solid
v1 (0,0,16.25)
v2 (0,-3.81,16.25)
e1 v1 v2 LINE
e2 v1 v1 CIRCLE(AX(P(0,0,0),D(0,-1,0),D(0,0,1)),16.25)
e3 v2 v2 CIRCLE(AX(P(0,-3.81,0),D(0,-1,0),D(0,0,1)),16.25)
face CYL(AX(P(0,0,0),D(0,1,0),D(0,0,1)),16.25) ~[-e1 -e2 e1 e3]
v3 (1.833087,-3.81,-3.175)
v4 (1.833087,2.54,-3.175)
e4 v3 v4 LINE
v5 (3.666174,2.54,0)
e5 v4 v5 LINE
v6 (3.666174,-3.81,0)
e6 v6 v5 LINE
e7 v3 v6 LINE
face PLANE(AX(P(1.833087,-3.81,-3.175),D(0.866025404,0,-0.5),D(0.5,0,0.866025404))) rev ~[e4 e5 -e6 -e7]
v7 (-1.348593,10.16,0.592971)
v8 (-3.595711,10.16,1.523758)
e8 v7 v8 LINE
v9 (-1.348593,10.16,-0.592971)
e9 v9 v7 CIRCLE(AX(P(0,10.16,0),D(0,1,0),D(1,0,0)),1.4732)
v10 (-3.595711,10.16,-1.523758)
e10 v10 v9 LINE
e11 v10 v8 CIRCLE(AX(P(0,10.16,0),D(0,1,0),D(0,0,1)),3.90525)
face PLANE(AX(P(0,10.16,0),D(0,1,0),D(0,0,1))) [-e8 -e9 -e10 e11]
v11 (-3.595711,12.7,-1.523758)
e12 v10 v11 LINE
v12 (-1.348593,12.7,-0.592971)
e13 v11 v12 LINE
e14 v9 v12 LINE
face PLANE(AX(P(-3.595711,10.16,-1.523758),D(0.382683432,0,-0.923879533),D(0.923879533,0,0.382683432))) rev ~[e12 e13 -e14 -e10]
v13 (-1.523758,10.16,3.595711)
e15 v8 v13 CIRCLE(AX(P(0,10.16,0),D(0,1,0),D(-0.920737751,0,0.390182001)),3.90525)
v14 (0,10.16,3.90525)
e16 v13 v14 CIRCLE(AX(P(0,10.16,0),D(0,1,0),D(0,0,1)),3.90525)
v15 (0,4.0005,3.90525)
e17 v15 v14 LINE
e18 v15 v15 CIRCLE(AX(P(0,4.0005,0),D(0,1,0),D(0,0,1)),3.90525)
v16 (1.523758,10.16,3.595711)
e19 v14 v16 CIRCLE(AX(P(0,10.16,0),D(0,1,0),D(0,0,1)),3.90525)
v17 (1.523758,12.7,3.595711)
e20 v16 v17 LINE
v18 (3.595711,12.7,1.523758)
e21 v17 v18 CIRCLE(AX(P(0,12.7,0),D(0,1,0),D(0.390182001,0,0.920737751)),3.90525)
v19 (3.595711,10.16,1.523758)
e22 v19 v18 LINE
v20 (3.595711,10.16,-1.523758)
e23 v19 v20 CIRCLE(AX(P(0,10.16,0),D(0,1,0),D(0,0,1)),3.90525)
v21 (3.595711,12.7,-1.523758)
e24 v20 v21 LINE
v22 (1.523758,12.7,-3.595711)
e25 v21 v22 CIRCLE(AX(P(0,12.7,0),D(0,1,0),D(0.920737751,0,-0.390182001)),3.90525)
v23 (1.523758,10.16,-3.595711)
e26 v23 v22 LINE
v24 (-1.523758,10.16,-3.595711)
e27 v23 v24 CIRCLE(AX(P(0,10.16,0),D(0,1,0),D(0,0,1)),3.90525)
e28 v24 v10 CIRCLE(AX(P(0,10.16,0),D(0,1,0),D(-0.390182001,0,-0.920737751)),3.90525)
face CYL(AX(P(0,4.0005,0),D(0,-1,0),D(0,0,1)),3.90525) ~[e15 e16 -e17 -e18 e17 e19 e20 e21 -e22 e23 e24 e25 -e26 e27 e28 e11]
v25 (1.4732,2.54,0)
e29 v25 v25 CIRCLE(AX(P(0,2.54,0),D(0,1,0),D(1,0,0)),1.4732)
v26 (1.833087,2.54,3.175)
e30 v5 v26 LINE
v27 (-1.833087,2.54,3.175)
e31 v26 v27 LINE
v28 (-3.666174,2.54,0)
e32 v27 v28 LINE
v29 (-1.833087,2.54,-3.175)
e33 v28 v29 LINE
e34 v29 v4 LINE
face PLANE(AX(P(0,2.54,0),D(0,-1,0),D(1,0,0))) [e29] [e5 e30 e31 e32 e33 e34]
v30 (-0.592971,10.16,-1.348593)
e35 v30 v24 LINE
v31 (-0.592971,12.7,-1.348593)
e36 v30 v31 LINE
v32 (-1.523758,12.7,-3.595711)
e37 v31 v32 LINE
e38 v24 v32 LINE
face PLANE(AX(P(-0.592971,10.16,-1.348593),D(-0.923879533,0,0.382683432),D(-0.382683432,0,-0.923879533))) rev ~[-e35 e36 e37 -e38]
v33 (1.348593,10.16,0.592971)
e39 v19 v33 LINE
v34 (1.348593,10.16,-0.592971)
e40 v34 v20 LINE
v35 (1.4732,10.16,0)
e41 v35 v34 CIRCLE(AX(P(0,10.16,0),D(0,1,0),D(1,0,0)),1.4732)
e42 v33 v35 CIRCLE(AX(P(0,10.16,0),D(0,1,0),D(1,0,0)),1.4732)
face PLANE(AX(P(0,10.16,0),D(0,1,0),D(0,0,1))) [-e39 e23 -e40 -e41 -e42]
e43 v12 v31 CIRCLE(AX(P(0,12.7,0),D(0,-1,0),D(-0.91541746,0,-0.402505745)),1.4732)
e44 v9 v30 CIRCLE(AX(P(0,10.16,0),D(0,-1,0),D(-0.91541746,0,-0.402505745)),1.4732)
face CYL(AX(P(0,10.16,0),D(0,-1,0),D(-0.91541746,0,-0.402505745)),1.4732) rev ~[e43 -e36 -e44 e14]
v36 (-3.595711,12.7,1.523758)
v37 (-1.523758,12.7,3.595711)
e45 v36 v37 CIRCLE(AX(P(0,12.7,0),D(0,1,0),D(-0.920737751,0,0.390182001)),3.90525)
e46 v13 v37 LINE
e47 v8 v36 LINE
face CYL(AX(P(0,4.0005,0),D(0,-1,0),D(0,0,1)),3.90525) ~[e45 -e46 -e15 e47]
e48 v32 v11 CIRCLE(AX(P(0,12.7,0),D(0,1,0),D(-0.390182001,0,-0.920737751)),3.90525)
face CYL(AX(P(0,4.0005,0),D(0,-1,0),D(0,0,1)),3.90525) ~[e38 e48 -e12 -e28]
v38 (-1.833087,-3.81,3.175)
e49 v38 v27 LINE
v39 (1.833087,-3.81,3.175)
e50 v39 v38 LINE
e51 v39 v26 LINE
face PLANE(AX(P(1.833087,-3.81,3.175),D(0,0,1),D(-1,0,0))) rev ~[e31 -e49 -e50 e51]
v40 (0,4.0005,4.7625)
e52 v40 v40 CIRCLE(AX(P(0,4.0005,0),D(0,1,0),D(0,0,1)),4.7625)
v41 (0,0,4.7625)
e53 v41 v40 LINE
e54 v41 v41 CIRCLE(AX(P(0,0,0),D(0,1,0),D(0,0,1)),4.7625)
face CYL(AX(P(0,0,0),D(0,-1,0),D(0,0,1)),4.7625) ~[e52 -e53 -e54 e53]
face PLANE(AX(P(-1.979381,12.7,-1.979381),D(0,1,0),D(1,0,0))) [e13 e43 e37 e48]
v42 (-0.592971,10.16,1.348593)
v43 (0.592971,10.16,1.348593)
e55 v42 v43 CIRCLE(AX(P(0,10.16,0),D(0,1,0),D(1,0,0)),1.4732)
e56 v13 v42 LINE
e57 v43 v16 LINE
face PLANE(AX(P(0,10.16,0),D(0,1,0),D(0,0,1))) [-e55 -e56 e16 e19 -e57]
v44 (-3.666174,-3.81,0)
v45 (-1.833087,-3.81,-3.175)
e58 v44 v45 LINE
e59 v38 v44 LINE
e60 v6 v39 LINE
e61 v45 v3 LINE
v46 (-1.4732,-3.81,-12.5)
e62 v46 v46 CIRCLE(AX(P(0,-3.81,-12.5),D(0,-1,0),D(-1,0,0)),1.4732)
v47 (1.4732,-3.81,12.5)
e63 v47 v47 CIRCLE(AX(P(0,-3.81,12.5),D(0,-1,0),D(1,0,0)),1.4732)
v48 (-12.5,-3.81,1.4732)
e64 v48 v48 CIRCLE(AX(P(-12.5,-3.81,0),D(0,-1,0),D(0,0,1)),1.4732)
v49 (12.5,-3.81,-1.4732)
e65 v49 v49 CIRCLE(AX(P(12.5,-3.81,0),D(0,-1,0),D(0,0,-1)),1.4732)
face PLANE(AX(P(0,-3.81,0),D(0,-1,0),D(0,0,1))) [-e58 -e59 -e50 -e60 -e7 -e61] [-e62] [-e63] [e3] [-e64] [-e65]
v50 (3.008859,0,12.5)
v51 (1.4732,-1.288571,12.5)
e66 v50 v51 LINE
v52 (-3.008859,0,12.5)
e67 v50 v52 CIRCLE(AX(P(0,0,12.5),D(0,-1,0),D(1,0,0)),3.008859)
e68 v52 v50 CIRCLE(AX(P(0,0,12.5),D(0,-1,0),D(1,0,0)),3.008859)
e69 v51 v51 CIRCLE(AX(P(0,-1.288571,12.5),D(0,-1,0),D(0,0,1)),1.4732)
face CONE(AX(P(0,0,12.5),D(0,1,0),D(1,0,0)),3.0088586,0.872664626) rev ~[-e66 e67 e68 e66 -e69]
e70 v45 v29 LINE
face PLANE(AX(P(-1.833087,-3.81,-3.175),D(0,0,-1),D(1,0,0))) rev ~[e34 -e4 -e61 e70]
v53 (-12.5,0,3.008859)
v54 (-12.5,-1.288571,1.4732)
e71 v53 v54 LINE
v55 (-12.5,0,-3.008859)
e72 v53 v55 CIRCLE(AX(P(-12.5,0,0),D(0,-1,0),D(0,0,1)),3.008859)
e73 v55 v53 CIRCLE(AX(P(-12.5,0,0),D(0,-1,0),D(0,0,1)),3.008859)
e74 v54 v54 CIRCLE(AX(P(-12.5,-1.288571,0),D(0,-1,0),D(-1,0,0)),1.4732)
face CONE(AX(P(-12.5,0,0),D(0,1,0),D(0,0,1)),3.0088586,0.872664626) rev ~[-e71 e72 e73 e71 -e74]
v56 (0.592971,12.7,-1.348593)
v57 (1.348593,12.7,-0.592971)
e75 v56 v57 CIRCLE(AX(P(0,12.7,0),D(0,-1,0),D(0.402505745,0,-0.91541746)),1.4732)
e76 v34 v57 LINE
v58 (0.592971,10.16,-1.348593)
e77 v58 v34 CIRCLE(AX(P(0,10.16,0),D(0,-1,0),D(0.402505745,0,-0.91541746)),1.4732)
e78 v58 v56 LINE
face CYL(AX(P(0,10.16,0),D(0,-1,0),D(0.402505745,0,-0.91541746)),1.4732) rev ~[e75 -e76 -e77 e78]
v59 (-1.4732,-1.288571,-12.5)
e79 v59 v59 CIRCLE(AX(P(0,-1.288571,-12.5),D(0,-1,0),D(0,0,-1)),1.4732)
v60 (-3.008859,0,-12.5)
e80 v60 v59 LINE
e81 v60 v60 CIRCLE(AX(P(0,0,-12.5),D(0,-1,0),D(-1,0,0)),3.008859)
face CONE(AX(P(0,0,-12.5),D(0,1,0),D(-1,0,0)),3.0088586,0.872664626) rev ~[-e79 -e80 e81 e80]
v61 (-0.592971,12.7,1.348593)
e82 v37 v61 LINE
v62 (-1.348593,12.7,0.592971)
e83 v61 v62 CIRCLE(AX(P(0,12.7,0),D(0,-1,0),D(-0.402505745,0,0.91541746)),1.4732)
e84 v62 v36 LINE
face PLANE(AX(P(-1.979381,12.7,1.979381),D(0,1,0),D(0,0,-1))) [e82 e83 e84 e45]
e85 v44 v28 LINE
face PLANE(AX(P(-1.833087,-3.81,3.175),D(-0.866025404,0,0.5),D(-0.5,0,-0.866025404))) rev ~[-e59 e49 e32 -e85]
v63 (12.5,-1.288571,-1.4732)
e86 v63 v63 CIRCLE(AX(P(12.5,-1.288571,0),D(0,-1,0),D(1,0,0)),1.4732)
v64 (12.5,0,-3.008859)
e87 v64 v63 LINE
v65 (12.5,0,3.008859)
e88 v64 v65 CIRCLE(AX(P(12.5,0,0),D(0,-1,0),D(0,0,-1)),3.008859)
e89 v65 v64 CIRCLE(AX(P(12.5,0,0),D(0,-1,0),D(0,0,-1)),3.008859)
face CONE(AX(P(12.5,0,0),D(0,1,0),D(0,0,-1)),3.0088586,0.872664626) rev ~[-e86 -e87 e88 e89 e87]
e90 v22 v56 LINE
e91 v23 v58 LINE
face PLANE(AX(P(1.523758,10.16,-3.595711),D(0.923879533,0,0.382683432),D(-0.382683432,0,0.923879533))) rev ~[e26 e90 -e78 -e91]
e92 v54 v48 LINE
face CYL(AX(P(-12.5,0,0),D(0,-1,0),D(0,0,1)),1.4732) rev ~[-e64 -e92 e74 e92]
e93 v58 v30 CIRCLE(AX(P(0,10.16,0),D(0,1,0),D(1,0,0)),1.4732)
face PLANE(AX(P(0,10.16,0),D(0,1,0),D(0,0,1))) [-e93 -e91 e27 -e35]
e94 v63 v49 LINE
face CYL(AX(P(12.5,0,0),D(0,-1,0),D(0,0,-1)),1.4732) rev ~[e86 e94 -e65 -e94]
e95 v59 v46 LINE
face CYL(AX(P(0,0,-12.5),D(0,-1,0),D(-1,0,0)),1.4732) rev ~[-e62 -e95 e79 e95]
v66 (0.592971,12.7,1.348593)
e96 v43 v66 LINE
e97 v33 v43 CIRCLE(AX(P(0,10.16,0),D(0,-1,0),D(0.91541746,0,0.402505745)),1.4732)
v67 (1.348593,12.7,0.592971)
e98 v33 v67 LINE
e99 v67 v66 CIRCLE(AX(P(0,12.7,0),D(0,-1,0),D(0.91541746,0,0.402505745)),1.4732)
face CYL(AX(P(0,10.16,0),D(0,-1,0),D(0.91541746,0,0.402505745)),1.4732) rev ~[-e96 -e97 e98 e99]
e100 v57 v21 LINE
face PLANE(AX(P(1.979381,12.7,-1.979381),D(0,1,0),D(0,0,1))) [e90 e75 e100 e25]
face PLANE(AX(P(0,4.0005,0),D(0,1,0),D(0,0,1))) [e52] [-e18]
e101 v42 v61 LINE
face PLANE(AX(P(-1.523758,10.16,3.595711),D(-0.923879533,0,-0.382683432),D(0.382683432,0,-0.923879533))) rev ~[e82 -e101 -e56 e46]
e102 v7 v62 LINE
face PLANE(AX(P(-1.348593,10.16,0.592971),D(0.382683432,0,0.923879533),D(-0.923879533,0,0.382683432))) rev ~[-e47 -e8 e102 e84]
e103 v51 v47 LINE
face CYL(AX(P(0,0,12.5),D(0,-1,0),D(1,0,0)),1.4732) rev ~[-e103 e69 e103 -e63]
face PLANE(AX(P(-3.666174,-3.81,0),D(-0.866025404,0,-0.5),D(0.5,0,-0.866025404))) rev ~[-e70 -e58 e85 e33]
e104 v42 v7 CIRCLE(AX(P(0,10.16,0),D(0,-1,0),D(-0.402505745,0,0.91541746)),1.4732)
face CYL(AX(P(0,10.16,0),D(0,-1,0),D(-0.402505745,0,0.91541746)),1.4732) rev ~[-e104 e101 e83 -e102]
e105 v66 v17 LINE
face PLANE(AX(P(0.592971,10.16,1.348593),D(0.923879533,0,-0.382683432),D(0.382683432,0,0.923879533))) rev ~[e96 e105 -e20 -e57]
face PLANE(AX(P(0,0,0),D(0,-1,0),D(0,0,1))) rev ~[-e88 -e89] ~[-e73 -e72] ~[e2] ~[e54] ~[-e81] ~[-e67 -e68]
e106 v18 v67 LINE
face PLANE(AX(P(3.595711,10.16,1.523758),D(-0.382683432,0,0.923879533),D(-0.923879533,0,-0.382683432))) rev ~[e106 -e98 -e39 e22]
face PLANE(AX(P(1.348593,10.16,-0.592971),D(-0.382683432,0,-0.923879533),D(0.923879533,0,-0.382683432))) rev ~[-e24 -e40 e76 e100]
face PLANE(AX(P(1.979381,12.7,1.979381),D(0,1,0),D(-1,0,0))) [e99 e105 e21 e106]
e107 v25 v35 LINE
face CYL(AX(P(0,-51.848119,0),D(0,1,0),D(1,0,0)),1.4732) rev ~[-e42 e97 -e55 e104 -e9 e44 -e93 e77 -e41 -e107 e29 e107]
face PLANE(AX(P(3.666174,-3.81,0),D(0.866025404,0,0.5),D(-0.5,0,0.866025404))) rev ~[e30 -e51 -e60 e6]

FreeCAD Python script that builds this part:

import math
import FreeCAD as App
import Part
import Sketcher

V = App.Vector
Q = App.Units.Quantity

doc = App.newDocument("Part")
body = doc.addObject("PartDesign::Body", "Body")

# Sketch on XZ plane
sketch1 = doc.addObject("Sketcher::SketchObject", "Sketch")
body.addObject(sketch1)
sketch1.AttachmentSupport = (doc.XZ_Plane, [""])
sketch1.MapMode = "FlatFace"
sketch1.addGeometry(Part.Circle(V(0, 0, 0), V(0, 0, 1), 4.8), False)
sketch1.addConstraint([
    Sketcher.Constraint("Coincident", 0, 3, -1, 1),
    Sketcher.Constraint("Diameter", 0, Q("0.375 in")),
])
pad1 = doc.addObject("PartDesign::Pad", "Pad")
body.addObject(pad1)
pad1.Profile = sketch1
pad1.Length = Q("0.4 in")
pad1.Reversed = True

# Sketch on XZ plane
sketch2 = doc.addObject("Sketcher::SketchObject", "Sketch001")
body.addObject(sketch2)
sketch2.AttachmentSupport = (doc.XZ_Plane, [""])
sketch2.MapMode = "FlatFace"
sketch2.addGeometry(Part.Circle(V(0, 0, 0), V(0, 0, 1), 16), False)
sketch2.addConstraint([
    Sketcher.Constraint("Coincident", 0, 3, -1, 1),
    Sketcher.Constraint("Diameter", 0, Q("32.5 mm")),
])
pad2 = doc.addObject("PartDesign::Pad", "Pad001")
body.addObject(pad2)
pad2.Profile = sketch2
pad2.Length = Q("0.15 in")

# Sketch on XZ plane
sketch3 = doc.addObject("Sketcher::SketchObject", "Sketch002")
body.addObject(sketch3)
sketch3.AttachmentSupport = (doc.XZ_Plane, [""])
sketch3.MapMode = "FlatFace"
sketch3.AttachmentOffset = App.Placement(V(0, 0, 0.15 * 25.4), App.Rotation())
sketch3.addGeometry(Part.Circle(V(0, 0, 0), V(0, 0, 1), 1.5), False)
sketch3.addConstraint([
    Sketcher.Constraint("Coincident", 0, 3, -1, 1),
    Sketcher.Constraint("Diameter", 0, Q("0.116 in")),
])
doc.recompute()
hole = doc.addObject("PartDesign::Hole", "Hole")
body.addObject(hole)
hole.Profile = sketch3
hole.ThreadType = "None"
hole.Diameter = Q("0.116 in")
hole.DepthType = "ThroughAll"

# Sketch on XZ plane
sketch4 = doc.addObject("Sketcher::SketchObject", "Sketch003")
body.addObject(sketch4)
sketch4.AttachmentSupport = (doc.XZ_Plane, [""])
sketch4.MapMode = "FlatFace"
sketch4.AttachmentOffset = App.Placement(V(0, 0, -0.1575 * 25.4), App.Rotation())
sketch4.addGeometry([
    Part.Circle(V(0, 0, 0), V(0, 0, 1), 4.8),
    Part.Circle(V(0, 0, 0), V(0, 0, 1), 3.9),
], False)
sketch4.addConstraint([
    Sketcher.Constraint("Coincident", 0, 3, -1, 1),
    Sketcher.Constraint("Coincident", 1, 3, -1, 1),
    Sketcher.Constraint("Diameter", 0, Q("0.375 in")),
    Sketcher.Constraint("Diameter", 1, Q("0.3075 in")),
])
pocket1 = doc.addObject("PartDesign::Pocket", "Pocket")
body.addObject(pocket1)
pocket1.Profile = sketch4
pocket1.Length = Q("0.2425 in")

# Sketch on XZ plane
sketch5 = doc.addObject("Sketcher::SketchObject", "Sketch004")
body.addObject(sketch5)
sketch5.AttachmentSupport = (doc.XZ_Plane, [""])
sketch5.MapMode = "FlatFace"
sketch5.AttachmentOffset = App.Placement(V(0, 0, 0.15 * 25.4), App.Rotation())
sketch5.addGeometry([
    Part.LineSegment(V(-3.7, 0, 0), V(-1.8, -3.2, 0)),  # 0
    Part.LineSegment(V(-1.8, -3.2, 0), V(1.8, -3.2, 0)),  # 1
    Part.LineSegment(V(1.8, -3.2, 0), V(3.7, 0, 0)),  # 2
    Part.LineSegment(V(3.7, 0, 0), V(1.8, 3.2, 0)),  # 3
    Part.LineSegment(V(1.8, 3.2, 0), V(-1.8, 3.2, 0)),  # 4
    Part.LineSegment(V(-1.8, 3.2, 0), V(-3.7, 0, 0)),  # 5
], False)
sketch5.addConstraint([
    Sketcher.Constraint("Coincident", 0, 2, 1, 1),
    Sketcher.Constraint("Coincident", 1, 2, 2, 1),
    Sketcher.Constraint("Coincident", 2, 2, 3, 1),
    Sketcher.Constraint("Coincident", 3, 2, 4, 1),
    Sketcher.Constraint("Coincident", 4, 2, 5, 1),
    Sketcher.Constraint("Coincident", 5, 2, 0, 1),
    Sketcher.Constraint("Horizontal", 1),
    Sketcher.Constraint("Horizontal", 4),
    Sketcher.Constraint("Symmetric", 0, 2, 3, 2, -1, 1),
    Sketcher.Constraint("Symmetric", 2, 2, 5, 2, -1, 1),
    Sketcher.Constraint("PointOnObject", 2, 2, -1),
    Sketcher.Constraint("Parallel", 2, 5),
    Sketcher.Constraint("Vertical", 1, 2, 3, 2),
    Sketcher.Constraint("Angle", 0, Q("-60 deg")),
    Sketcher.Constraint("DistanceY", 1, 2, 3, 2, Q("0.25 in")),
    Sketcher.Constraint("DistanceX", 1, 1, 1, 2, Q("3.666174 mm")),
])
pocket2 = doc.addObject("PartDesign::Pocket", "Pocket001")
body.addObject(pocket2)
pocket2.Profile = sketch5
pocket2.Length = Q("0.25 in")

# Sketch on XZ plane
sketch6 = doc.addObject("Sketcher::SketchObject", "Sketch005")
body.addObject(sketch6)
sketch6.AttachmentSupport = (doc.XZ_Plane, [""])
sketch6.MapMode = "FlatFace"
sketch6.AttachmentOffset = App.Placement(V(0, 0, -0.4 * 25.4), App.Rotation())
sketch6.addGeometry([
    Part.LineSegment(V(-0.6, -1.3, 0), V(-1.5, -3.6, 0)),
    Part.ArcOfCircle(Part.Circle(V(0, 0, 0), V(0, 0, 1), 3.9), math.radians(-157), math.radians(-113)),
    Part.LineSegment(V(-3.6, -1.5, 0), V(-1.3, -0.6, 0)),
    Part.ArcOfCircle(Part.Circle(V(0, 0, 0), V(0, 0, 1), 1.5), math.radians(-156), math.radians(-114)),
], False)
sketch6.addConstraint([
    Sketcher.Constraint("Coincident", 0, 2, 1, 2),
    Sketcher.Constraint("Coincident", 1, 1, 2, 1),
    Sketcher.Constraint("Coincident", 2, 2, 3, 1),
    Sketcher.Constraint("Coincident", 3, 2, 0, 1),
    Sketcher.Constraint("Coincident", 1, 3, -1, 1),
    Sketcher.Constraint("Coincident", 3, 3, -1, 1),
    Sketcher.Constraint("Equal", 0, 2),
    Sketcher.Constraint("Radius", 3, Q("0.058 in")),
    Sketcher.Constraint("Angle", 0, Q("-112.5 deg")),
    Sketcher.Constraint("Angle", 2, Q("22.5 deg")),
    Sketcher.Constraint("Radius", 1, Q("3.90525 mm")),
    Sketcher.Constraint("DistanceX", 0, 2, -1, 1, Q("1.523758 mm")),
])
pad3 = doc.addObject("PartDesign::Pad", "Pad002")
body.addObject(pad3)
pad3.Profile = sketch6
pad3.Length = Q("0.1 in")
pad3.Reversed = True
doc.recompute()

polarpattern = doc.addObject("PartDesign::PolarPattern", "PolarPattern")
body.addObject(polarpattern)
polarpattern.Originals = [pad3]
polarpattern.Axis = (doc.Y_Axis, [""])
polarpattern.Angle = 360
polarpattern.Occurrences = 4
body.Tip = polarpattern

# Sketch on XZ plane
sketch7 = doc.addObject("Sketcher::SketchObject", "Sketch006")
body.addObject(sketch7)
sketch7.AttachmentSupport = (doc.XZ_Plane, [""])
sketch7.MapMode = "FlatFace"
sketch7.addGeometry(Part.Circle(V(0, -12.5, 0), V(0, 0, 1), 1.5), False)
sketch7.addConstraint([
    Sketcher.Constraint("PointOnObject", 0, 3, -2),
    Sketcher.Constraint("Diameter", 0, Q("0.116 in")),
    Sketcher.Constraint("DistanceY", 0, 3, -1, 1, Q("12.5 mm")),
])
doc.recompute()
hole2 = doc.addObject("PartDesign::Hole", "Hole001")
body.addObject(hole2)
hole2.Profile = sketch7
hole2.ThreadType = "None"
hole2.Diameter = Q("0.116 in")
hole2.DepthType = "ThroughAll"
hole2.HoleCutType = "Countersink"
hole2.HoleCutDiameter = 6.017717
hole2.HoleCutCountersinkAngle = 100
hole2.Reversed = True
doc.recompute()

polarpattern2 = doc.addObject("PartDesign::PolarPattern", "PolarPattern001")
body.addObject(polarpattern2)
polarpattern2.Originals = [hole2]
polarpattern2.Axis = (doc.Y_Axis, [""])
polarpattern2.Angle = 360
polarpattern2.Occurrences = 4
body.Tip = polarpattern2

doc.recompute()
